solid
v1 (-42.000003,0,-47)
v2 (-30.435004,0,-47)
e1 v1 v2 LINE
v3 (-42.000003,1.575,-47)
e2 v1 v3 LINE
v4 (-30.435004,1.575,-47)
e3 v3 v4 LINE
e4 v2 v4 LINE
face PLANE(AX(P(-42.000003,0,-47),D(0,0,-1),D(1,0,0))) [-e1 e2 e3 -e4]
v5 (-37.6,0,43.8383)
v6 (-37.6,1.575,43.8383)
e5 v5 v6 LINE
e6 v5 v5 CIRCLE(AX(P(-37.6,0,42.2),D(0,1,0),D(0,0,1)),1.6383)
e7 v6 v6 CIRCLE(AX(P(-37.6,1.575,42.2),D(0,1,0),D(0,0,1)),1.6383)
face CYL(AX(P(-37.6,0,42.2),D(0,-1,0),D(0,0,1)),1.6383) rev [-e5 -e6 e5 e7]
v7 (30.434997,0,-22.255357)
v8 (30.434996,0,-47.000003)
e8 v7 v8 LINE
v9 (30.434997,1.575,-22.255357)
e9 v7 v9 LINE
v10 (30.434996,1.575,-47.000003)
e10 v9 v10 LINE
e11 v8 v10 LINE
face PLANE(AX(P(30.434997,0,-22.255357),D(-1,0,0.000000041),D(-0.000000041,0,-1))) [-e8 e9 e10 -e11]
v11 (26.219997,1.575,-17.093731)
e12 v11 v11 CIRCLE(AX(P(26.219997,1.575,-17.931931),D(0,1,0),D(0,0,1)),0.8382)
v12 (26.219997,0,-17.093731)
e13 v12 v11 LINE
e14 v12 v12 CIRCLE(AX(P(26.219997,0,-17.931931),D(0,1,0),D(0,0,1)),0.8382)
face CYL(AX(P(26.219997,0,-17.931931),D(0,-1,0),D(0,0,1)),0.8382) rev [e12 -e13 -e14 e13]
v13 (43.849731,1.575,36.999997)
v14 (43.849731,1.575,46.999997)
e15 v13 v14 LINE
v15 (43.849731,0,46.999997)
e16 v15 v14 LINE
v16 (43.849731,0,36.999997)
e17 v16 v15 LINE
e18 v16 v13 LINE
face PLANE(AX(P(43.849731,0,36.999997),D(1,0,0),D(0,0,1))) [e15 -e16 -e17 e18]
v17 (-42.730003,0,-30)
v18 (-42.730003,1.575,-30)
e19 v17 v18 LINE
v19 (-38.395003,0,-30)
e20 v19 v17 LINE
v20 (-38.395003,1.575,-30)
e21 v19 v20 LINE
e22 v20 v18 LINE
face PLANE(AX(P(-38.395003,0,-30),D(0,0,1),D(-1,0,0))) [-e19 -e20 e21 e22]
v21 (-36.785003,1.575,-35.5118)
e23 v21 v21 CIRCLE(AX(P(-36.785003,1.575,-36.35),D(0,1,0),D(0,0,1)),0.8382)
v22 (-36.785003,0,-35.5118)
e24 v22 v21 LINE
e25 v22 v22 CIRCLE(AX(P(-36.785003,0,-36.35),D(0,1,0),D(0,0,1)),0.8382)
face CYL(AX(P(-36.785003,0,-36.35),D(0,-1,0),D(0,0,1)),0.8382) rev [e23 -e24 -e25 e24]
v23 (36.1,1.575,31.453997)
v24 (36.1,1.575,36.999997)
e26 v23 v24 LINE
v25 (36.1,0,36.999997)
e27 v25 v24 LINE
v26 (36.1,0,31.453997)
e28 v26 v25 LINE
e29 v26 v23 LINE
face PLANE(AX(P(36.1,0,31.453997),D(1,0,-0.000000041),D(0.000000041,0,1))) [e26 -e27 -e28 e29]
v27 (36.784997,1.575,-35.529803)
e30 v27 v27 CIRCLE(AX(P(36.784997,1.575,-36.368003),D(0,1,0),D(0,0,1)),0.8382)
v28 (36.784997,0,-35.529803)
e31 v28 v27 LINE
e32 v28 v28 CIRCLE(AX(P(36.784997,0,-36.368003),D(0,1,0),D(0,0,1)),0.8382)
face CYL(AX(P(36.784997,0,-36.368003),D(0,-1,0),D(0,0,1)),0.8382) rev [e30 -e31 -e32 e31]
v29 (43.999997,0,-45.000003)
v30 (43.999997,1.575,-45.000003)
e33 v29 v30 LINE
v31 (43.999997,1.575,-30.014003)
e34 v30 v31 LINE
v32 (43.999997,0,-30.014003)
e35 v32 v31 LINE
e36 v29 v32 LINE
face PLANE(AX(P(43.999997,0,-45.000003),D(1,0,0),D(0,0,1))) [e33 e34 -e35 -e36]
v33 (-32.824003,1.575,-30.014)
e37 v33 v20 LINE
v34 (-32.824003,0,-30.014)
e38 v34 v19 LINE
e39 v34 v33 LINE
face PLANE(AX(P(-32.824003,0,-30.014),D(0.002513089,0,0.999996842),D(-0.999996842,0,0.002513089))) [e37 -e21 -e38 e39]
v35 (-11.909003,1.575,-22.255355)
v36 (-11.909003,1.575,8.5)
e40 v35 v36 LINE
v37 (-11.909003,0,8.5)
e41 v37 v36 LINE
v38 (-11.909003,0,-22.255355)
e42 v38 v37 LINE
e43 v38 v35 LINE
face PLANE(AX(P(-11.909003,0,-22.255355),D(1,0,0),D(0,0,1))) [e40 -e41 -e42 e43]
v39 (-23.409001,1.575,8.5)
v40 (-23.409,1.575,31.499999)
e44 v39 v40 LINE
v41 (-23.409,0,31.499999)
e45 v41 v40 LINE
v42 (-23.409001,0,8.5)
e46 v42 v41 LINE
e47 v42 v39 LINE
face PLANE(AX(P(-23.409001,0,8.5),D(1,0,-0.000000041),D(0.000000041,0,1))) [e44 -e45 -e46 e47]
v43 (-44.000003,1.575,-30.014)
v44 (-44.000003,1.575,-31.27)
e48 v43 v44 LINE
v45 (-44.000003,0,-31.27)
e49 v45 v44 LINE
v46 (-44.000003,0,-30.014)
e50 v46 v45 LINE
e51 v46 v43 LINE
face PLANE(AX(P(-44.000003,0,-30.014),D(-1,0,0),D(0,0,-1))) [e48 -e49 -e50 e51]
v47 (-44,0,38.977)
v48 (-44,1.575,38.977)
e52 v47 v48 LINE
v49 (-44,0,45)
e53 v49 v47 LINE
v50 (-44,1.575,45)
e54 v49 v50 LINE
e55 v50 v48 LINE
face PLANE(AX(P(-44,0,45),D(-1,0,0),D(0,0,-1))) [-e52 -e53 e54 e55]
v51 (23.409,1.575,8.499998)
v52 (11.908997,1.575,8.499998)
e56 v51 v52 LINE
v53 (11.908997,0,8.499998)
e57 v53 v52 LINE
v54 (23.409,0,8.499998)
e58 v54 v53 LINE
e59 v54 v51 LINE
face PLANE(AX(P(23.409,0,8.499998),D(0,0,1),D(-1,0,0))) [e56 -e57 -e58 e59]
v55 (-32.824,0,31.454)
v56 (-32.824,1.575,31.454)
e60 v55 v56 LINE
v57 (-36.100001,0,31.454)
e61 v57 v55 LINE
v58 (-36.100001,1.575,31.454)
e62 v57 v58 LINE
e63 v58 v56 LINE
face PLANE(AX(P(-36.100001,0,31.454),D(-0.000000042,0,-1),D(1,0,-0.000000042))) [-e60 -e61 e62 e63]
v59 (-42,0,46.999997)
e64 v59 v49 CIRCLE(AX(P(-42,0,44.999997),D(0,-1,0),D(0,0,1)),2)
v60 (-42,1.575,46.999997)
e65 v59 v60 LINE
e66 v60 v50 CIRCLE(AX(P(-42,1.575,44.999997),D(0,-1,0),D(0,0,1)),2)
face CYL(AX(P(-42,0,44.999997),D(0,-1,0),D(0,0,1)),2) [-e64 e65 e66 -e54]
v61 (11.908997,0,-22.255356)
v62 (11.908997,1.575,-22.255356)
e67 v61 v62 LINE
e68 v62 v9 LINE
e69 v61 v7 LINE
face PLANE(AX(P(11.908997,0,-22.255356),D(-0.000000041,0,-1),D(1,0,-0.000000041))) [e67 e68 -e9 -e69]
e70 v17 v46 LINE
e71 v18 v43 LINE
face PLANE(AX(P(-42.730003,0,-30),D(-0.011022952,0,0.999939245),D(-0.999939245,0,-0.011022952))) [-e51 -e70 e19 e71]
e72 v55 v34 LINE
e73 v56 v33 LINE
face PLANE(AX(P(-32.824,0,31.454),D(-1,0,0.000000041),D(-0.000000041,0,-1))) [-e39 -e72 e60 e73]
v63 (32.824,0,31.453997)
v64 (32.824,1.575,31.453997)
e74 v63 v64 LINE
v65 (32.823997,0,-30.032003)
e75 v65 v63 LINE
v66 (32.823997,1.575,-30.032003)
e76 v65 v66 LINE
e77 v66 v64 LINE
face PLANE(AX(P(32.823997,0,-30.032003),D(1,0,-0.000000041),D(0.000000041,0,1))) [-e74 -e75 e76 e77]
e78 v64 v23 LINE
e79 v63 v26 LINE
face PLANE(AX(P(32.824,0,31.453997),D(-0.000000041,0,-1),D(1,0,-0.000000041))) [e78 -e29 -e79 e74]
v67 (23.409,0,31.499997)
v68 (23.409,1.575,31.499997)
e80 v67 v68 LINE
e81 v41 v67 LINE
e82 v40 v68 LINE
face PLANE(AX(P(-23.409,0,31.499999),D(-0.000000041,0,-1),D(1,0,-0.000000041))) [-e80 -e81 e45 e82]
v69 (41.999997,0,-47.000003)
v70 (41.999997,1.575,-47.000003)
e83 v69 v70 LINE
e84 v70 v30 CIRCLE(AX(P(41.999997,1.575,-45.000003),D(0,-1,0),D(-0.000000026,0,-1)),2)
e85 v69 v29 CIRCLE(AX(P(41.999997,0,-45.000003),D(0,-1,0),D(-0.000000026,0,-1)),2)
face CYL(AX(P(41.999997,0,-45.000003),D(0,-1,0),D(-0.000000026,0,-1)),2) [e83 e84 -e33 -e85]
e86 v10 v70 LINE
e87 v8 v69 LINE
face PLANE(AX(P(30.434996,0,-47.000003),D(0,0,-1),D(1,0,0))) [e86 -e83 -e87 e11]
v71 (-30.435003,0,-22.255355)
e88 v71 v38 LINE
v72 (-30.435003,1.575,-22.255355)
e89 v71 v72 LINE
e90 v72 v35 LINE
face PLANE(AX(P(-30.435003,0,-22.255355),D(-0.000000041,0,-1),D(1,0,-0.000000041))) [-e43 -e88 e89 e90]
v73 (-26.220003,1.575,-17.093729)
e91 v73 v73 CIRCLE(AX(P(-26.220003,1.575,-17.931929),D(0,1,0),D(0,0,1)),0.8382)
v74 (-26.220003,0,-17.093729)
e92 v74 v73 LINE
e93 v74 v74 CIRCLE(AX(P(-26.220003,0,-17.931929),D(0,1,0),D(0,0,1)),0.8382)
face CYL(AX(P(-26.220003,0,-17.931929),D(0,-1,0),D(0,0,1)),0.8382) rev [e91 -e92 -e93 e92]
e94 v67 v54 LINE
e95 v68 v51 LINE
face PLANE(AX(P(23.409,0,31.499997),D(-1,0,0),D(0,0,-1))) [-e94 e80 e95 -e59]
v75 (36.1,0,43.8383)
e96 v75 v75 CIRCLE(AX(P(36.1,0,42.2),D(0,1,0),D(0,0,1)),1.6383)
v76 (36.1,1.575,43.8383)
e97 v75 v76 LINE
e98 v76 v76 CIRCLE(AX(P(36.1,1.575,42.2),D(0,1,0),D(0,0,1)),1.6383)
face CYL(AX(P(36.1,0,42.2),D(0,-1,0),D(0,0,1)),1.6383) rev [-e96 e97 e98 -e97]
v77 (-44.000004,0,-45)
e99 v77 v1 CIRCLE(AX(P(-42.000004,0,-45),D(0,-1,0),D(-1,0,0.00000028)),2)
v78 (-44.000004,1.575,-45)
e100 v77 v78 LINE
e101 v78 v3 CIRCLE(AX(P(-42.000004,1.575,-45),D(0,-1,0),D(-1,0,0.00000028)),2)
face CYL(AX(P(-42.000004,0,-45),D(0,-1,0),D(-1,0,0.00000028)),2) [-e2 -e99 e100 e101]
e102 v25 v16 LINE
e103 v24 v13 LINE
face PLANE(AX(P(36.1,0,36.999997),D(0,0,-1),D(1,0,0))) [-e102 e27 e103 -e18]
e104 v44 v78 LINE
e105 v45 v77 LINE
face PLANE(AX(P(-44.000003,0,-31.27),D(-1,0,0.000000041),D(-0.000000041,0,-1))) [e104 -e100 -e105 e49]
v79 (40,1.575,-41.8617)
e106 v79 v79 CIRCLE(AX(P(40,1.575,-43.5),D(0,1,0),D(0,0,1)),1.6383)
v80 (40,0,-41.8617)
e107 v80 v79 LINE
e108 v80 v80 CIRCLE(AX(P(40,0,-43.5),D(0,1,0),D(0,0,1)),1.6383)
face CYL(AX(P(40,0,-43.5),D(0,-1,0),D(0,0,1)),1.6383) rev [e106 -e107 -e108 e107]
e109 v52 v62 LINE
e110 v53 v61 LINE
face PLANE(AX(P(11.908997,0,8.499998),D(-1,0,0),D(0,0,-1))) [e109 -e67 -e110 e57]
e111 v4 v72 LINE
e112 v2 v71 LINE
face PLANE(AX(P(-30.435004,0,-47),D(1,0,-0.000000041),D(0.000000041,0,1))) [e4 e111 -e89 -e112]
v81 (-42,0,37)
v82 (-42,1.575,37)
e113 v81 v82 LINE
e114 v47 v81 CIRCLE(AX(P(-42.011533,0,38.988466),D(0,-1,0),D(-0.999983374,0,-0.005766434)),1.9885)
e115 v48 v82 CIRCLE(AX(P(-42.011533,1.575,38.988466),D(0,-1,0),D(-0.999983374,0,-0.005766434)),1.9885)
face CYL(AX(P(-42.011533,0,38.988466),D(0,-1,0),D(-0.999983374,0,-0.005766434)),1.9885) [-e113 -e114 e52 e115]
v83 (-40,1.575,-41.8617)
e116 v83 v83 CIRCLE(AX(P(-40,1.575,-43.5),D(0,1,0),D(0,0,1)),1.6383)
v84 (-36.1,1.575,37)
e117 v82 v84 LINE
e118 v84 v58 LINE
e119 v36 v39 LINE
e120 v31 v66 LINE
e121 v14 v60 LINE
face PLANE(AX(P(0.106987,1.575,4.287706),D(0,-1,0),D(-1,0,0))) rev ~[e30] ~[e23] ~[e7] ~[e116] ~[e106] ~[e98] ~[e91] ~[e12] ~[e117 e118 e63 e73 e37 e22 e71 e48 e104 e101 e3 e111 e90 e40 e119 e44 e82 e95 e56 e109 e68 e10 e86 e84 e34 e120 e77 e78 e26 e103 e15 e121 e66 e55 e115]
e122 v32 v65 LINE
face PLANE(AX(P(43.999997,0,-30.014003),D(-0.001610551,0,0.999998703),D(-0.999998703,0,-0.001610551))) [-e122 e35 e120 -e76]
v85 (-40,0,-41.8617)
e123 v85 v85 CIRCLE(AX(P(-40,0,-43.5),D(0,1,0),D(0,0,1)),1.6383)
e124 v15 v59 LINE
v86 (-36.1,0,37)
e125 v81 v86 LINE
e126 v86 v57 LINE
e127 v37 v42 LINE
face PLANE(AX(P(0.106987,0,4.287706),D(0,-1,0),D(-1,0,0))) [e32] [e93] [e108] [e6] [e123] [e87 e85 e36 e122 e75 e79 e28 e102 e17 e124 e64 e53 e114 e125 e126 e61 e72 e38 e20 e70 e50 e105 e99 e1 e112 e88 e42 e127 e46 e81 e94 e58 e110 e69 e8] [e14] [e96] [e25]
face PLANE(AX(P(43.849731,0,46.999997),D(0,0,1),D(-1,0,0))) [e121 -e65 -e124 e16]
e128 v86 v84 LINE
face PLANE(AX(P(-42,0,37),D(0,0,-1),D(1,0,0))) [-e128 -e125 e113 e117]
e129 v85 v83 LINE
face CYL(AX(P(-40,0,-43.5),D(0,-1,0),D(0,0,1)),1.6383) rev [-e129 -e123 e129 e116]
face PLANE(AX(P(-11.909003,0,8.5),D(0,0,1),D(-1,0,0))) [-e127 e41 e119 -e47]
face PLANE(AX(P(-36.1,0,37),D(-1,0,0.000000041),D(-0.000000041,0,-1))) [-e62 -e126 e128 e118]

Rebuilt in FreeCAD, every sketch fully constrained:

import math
import FreeCAD as App
import Part
import Sketcher

V = App.Vector
Q = App.Units.Quantity

doc = App.newDocument("Part")
params = doc.addObject("Spreadsheet::Sheet", "Params")
for row, (alias, value) in enumerate([
    ("sketch1_radius", "2 mm"),
    ("sketch1_height", "10 mm"),
    ("sketch1_height2", "23 mm"),
    ("sketch1_width", "5.9 mm"),
    ("sketch1_width2", "11.499999 mm"),
    ("pad1_length", "1.575 mm"),
], start=1):
    params.set(f"A{row}", alias)
    params.set(f"B{row}", "=" + value)
    params.setAlias(f"B{row}", alias)

body = doc.addObject("PartDesign::Body", "Body")

# Sketch on XZ plane
sketch1 = body.newObject("Sketcher::SketchObject", "Sketch")
sketch1.AttachmentSupport = (doc.getObject("XZ_Plane"), [""])
sketch1.MapMode = "FlatFace"
sketch1.addGeometry(Part.LineSegment(V(-42.7, -30, 0), V(-38.4, -30, 0)), False)
sketch1.addGeometry(Part.LineSegment(V(-38.4, -30, 0), V(-32.8, -30, 0)), False)
sketch1.addGeometry(Part.LineSegment(V(-32.8, -30, 0), V(-32.8, 31.5, 0)), False)
sketch1.addGeometry(Part.LineSegment(V(-32.8, 31.5, 0), V(-36.1, 31.5, 0)), False)
sketch1.addGeometry(Part.LineSegment(V(-36.1, 31.5, 0), V(-36.1, 37, 0)), False)
sketch1.addGeometry(Part.LineSegment(V(-36.1, 37, 0), V(-42, 37, 0)), False)
sketch1.addGeometry(Part.ArcOfCircle(Part.Circle(V(-42, 39, 0), V(0, 0, 1), 2), math.radians(-180), math.radians(-90)), False)
sketch1.addGeometry(Part.LineSegment(V(-44, 39, 0), V(-44, 45, 0)), False)
sketch1.addGeometry(Part.ArcOfCircle(Part.Circle(V(-42, 45, 0), V(0, 0, 1), 2), math.radians(90), math.radians(180)), False)
sketch1.addGeometry(Part.LineSegment(V(-42, 47, 0), V(43.8, 47, 0)), False)
sketch1.addGeometry(Part.LineSegment(V(43.8, 47, 0), V(43.8, 37, 0)), False)
sketch1.addGeometry(Part.LineSegment(V(43.8, 37, 0), V(36.1, 37, 0)), False)
sketch1.addGeometry(Part.LineSegment(V(36.1, 37, 0), V(36.1, 31.5, 0)), False)
sketch1.addGeometry(Part.LineSegment(V(36.1, 31.5, 0), V(32.8, 31.5, 0)), False)
sketch1.addGeometry(Part.LineSegment(V(32.8, 31.5, 0), V(32.8, -30, 0)), False)
sketch1.addGeometry(Part.LineSegment(V(32.8, -30, 0), V(44, -30, 0)), False)
sketch1.addGeometry(Part.LineSegment(V(44, -30, 0), V(44, -45, 0)), False)
sketch1.addGeometry(Part.ArcOfCircle(Part.Circle(V(42, -45, 0), V(0, 0, 1), 2), math.radians(-90), math.radians(0)), False)
sketch1.addGeometry(Part.LineSegment(V(42, -47, 0), V(30.4, -47, 0)), False)
sketch1.addGeometry(Part.LineSegment(V(30.4, -47, 0), V(30.4, -22.3, 0)), False)
sketch1.addGeometry(Part.LineSegment(V(30.4, -22.3, 0), V(11.9, -22.3, 0)), False)
sketch1.addGeometry(Part.LineSegment(V(11.9, -22.3, 0), V(11.9, 8.5, 0)), False)
sketch1.addGeometry(Part.LineSegment(V(11.9, 8.5, 0), V(23.4, 8.5, 0)), False)
sketch1.addGeometry(Part.LineSegment(V(23.4, 8.5, 0), V(23.4, 31.5, 0)), False)
sketch1.addGeometry(Part.LineSegment(V(23.4, 31.5, 0), V(-23.4, 31.5, 0)), False)
sketch1.addGeometry(Part.LineSegment(V(-23.4, 31.5, 0), V(-23.4, 8.5, 0)), False)
sketch1.addGeometry(Part.LineSegment(V(-23.4, 8.5, 0), V(-11.9, 8.5, 0)), False)
sketch1.addGeometry(Part.LineSegment(V(-11.9, 8.5, 0), V(-11.9, -22.3, 0)), False)
sketch1.addGeometry(Part.LineSegment(V(-11.9, -22.3, 0), V(-30.4, -22.3, 0)), False)
sketch1.addGeometry(Part.LineSegment(V(-30.4, -22.3, 0), V(-30.4, -47, 0)), False)
sketch1.addGeometry(Part.LineSegment(V(-30.4, -47, 0), V(-42, -47, 0)), False)
sketch1.addGeometry(Part.ArcOfCircle(Part.Circle(V(-42, -45, 0), V(0, 0, 1), 2), math.radians(180), math.radians(270)), False)
sketch1.addGeometry(Part.LineSegment(V(-44, -45, 0), V(-44, -31.3, 0)), False)
sketch1.addGeometry(Part.LineSegment(V(-44, -31.3, 0), V(-44, -30, 0)), False)
sketch1.addGeometry(Part.LineSegment(V(-44, -30, 0), V(-42.7, -30, 0)), False)
sketch1.addGeometry(Part.Circle(V(36.1, 42.2, 0), V(0, 0, 1), 1.6), False)
sketch1.addGeometry(Part.Circle(V(-37.6, 42.2, 0), V(0, 0, 1), 1.6), False)
sketch1.addGeometry(Part.Circle(V(26.2, -17.9, 0), V(0, 0, 1), 0.8), False)
sketch1.addGeometry(Part.Circle(V(36.8, -36.4, 0), V(0, 0, 1), 0.8), False)
sketch1.addGeometry(Part.Circle(V(40, -43.5, 0), V(0, 0, 1), 1.6), False)
sketch1.addGeometry(Part.Circle(V(-26.2, -17.9, 0), V(0, 0, 1), 0.8), False)
sketch1.addGeometry(Part.Circle(V(-36.8, -36.4, 0), V(0, 0, 1), 0.8), False)
sketch1.addGeometry(Part.Circle(V(-40, -43.5, 0), V(0, 0, 1), 1.6), False)
sketch1.addConstraint(Sketcher.Constraint("Coincident", 0, 2, 1, 1))
sketch1.addConstraint(Sketcher.Constraint("Coincident", 1, 2, 2, 1))
sketch1.addConstraint(Sketcher.Constraint("Coincident", 2, 2, 3, 1))
sketch1.addConstraint(Sketcher.Constraint("Coincident", 3, 2, 4, 1))
sketch1.addConstraint(Sketcher.Constraint("Coincident", 4, 2, 5, 1))
sketch1.addConstraint(Sketcher.Constraint("Coincident", 5, 2, 6, 2))
sketch1.addConstraint(Sketcher.Constraint("Coincident", 6, 1, 7, 1))
sketch1.addConstraint(Sketcher.Constraint("Tangent", 7, 2, 8, 2))
sketch1.addConstraint(Sketcher.Constraint("Tangent", 8, 1, 9, 1))
sketch1.addConstraint(Sketcher.Constraint("Coincident", 9, 2, 10, 1))
sketch1.addConstraint(Sketcher.Constraint("Coincident", 10, 2, 11, 1))
sketch1.addConstraint(Sketcher.Constraint("Coincident", 11, 2, 12, 1))
sketch1.addConstraint(Sketcher.Constraint("Coincident", 12, 2, 13, 1))
sketch1.addConstraint(Sketcher.Constraint("Coincident", 13, 2, 14, 1))
sketch1.addConstraint(Sketcher.Constraint("Coincident", 14, 2, 15, 1))
sketch1.addConstraint(Sketcher.Constraint("Coincident", 15, 2, 16, 1))
sketch1.addConstraint(Sketcher.Constraint("Tangent", 16, 2, 17, 2))
sketch1.addConstraint(Sketcher.Constraint("Tangent", 17, 1, 18, 1))
sketch1.addConstraint(Sketcher.Constraint("Coincident", 18, 2, 19, 1))
sketch1.addConstraint(Sketcher.Constraint("Coincident", 19, 2, 20, 1))
sketch1.addConstraint(Sketcher.Constraint("Coincident", 20, 2, 21, 1))
sketch1.addConstraint(Sketcher.Constraint("Coincident", 21, 2, 22, 1))
sketch1.addConstraint(Sketcher.Constraint("Coincident", 22, 2, 23, 1))
sketch1.addConstraint(Sketcher.Constraint("Coincident", 23, 2, 24, 1))
sketch1.addConstraint(Sketcher.Constraint("Coincident", 24, 2, 25, 1))
sketch1.addConstraint(Sketcher.Constraint("Coincident", 25, 2, 26, 1))
sketch1.addConstraint(Sketcher.Constraint("Coincident", 26, 2, 27, 1))
sketch1.addConstraint(Sketcher.Constraint("Coincident", 27, 2, 28, 1))
sketch1.addConstraint(Sketcher.Constraint("Coincident", 28, 2, 29, 1))
sketch1.addConstraint(Sketcher.Constraint("Coincident", 29, 2, 30, 1))
sketch1.addConstraint(Sketcher.Constraint("Tangent", 30, 2, 31, 2))
sketch1.addConstraint(Sketcher.Constraint("Tangent", 31, 1, 32, 1))
sketch1.addConstraint(Sketcher.Constraint("Coincident", 32, 2, 33, 1))
sketch1.addConstraint(Sketcher.Constraint("Coincident", 33, 2, 34, 1))
sketch1.addConstraint(Sketcher.Constraint("Coincident", 34, 2, 0, 1))
sketch1.addConstraint(Sketcher.Constraint("Horizontal", 0))
sketch1.addConstraint(Sketcher.Constraint("Horizontal", 3))
sketch1.addConstraint(Sketcher.Constraint("Vertical", 4))
sketch1.addConstraint(Sketcher.Constraint("Horizontal", 5))
sketch1.addConstraint(Sketcher.Constraint("Vertical", 7))
sketch1.addConstraint(Sketcher.Constraint("Horizontal", 9))
sketch1.addConstraint(Sketcher.Constraint("Vertical", 10))
sketch1.addConstraint(Sketcher.Constraint("Horizontal", 11))
sketch1.addConstraint(Sketcher.Constraint("Vertical", 12))
sketch1.addConstraint(Sketcher.Constraint("Horizontal", 13))
sketch1.addConstraint(Sketcher.Constraint("Vertical", 16))
sketch1.addConstraint(Sketcher.Constraint("Horizontal", 18))
sketch1.addConstraint(Sketcher.Constraint("Vertical", 19))
sketch1.addConstraint(Sketcher.Constraint("Horizontal", 20))
sketch1.addConstraint(Sketcher.Constraint("Vertical", 21))
sketch1.addConstraint(Sketcher.Constraint("Horizontal", 22))
sketch1.addConstraint(Sketcher.Constraint("Vertical", 23))
sketch1.addConstraint(Sketcher.Constraint("Horizontal", 24))
sketch1.addConstraint(Sketcher.Constraint("Vertical", 25))
sketch1.addConstraint(Sketcher.Constraint("Horizontal", 26))
sketch1.addConstraint(Sketcher.Constraint("Vertical", 27))
sketch1.addConstraint(Sketcher.Constraint("Horizontal", 28))
sketch1.addConstraint(Sketcher.Constraint("Vertical", 29))
sketch1.addConstraint(Sketcher.Constraint("Horizontal", 30))
sketch1.addConstraint(Sketcher.Constraint("Vertical", 32))
sketch1.addConstraint(Sketcher.Constraint("Vertical", 33))
sketch1.addConstraint(Sketcher.Constraint("Equal", 8, 17))
sketch1.addConstraint(Sketcher.Constraint("Equal", 17, 31))
sketch1.addConstraint(Sketcher.Constraint("Equal", 35, 36))
sketch1.addConstraint(Sketcher.Constraint("Equal", 37, 38))
sketch1.addConstraint(Sketcher.Constraint("Equal", 36, 39))
sketch1.addConstraint(Sketcher.Constraint("Equal", 38, 40))
sketch1.addConstraint(Sketcher.Constraint("Equal", 40, 41))
sketch1.addConstraint(Sketcher.Constraint("Equal", 39, 42))
sketch1.addConstraint(Sketcher.Constraint("Symmetric", 8, 3, 17, 3, -1, 1))
sketch1.addConstraint(Sketcher.Constraint("Symmetric", 17, 3, 31, 3, -2))
sketch1.addConstraint(Sketcher.Constraint("Symmetric", 37, 3, 40, 3, -2))
sketch1.addConstraint(Sketcher.Constraint("Symmetric", 39, 3, 42, 3, -2))
sketch1.addConstraint(Sketcher.Constraint("Symmetric", 4, 2, 11, 2, -2))
sketch1.addConstraint(Sketcher.Constraint("Symmetric", 2, 2, 13, 2, -2))
sketch1.addConstraint(Sketcher.Constraint("Symmetric", 22, 2, 25, 2, -2))
sketch1.addConstraint(Sketcher.Constraint("Symmetric", 20, 2, 27, 2, -2))
sketch1.addConstraint(Sketcher.Constraint("Parallel", 2, 14))
sketch1.addConstraint(Sketcher.Constraint("Horizontal", 35, 3, 36, 3))
sketch1.addConstraint(Sketcher.Constraint("Horizontal", 1, 2, 33, 2))
sketch1.addConstraint(Sketcher.Constraint("Vertical", 8, 3, 5, 2))
sketch1.addConstraint(Sketcher.Constraint("Vertical", 35, 3, 11, 2))
sketch1.addConstraint(Sketcher.Constraint("Equal", 20, 28))
sketch1.addConstraint(Sketcher.Constraint("Radius", 8, Q("2 mm")))
sketch1.addConstraint(Sketcher.Constraint("DistanceY", 10, 2, 10, 1, Q("10 mm")))
sketch1.addConstraint(Sketcher.Constraint("DistanceY", 23, 1, 23, 2, Q("23 mm")))
sketch1.addConstraint(Sketcher.Constraint("Angle", 2, Q("89.999998 deg")))
sketch1.addConstraint(Sketcher.Constraint("DistanceX", 5, 2, 5, 1, Q("5.9 mm")))
sketch1.addConstraint(Sketcher.Constraint("DistanceX", 26, 1, 26, 2, Q("11.499999 mm")))
sketch1.addConstraint(Sketcher.Constraint("DistanceX", 8, 3, -1, 1, Q("42 mm")))
sketch1.addConstraint(Sketcher.Constraint("DistanceY", 31, 3, -1, 1, Q("45 mm")))
sketch1.addConstraint(Sketcher.Constraint("DistanceX", -1, 1, 39, 3, Q("40 mm")))
sketch1.addConstraint(Sketcher.Constraint("DistanceY", 0, 2, -1, 1, Q("30 mm")))
sketch1.addConstraint(Sketcher.Constraint("Diameter", 35, Q("3.2766 mm")))
sketch1.addConstraint(Sketcher.Constraint("Diameter", 37, Q("1.6764 mm")))
sketch1.addConstraint(Sketcher.Constraint("DistanceY", 32, 1, 32, 2, Q("13.73 mm")))
sketch1.addConstraint(Sketcher.Constraint("DistanceY", -1, 1, 35, 3, Q("42.2 mm")))
sketch1.addConstraint(Sketcher.Constraint("DistanceX", 36, 3, -1, 1, Q("37.6 mm")))
sketch1.addConstraint(Sketcher.Constraint("DistanceY", 39, 3, -1, 1, Q("43.5 mm")))
sketch1.addConstraint(Sketcher.Constraint("DistanceY", -1, 1, 24, 2, Q("31.499999 mm")))
sketch1.addConstraint(Sketcher.Constraint("Radius", 6, Q("1.9885 mm")))
sketch1.addConstraint(Sketcher.Constraint("DistanceX", 0, 1, 0, 2, Q("4.335 mm")))
sketch1.addConstraint(Sketcher.Constraint("DistanceX", 3, 2, 3, 1, Q("3.276 mm")))
sketch1.addConstraint(Sketcher.Constraint("DistanceX", 18, 2, 18, 1, Q("11.565001 mm")))
sketch1.addConstraint(Sketcher.Constraint("DistanceX", 20, 2, 20, 1, Q("18.526 mm")))
sketch1.addConstraint(Sketcher.Constraint("DistanceY", 4, 1, 4, 2, Q("5.546 mm")))
sketch1.addConstraint(Sketcher.Constraint("DistanceY", 7, 1, 7, 2, Q("6.023 mm")))
sketch1.addConstraint(Sketcher.Constraint("DistanceY", 16, 2, 16, 1, Q("14.986 mm")))
sketch1.addConstraint(Sketcher.Constraint("DistanceY", 33, 1, 33, 2, Q("1.256 mm")))
sketch1.addConstraint(Sketcher.Constraint("DistanceY", 41, 3, -1, 1, Q("36.35 mm")))
sketch1.addConstraint(Sketcher.Constraint("DistanceX", 37, 3, 17, 3, Q("15.78 mm")))
sketch1.addConstraint(Sketcher.Constraint("DistanceX", 41, 3, 38, 3, Q("73.57 mm")))
sketch1.addConstraint(Sketcher.Constraint("DistanceX", 0, 2, 41, 3, Q("1.61 mm")))
sketch1.addConstraint(Sketcher.Constraint("DistanceX", 18, 2, 38, 3, Q("6.35 mm")))
sketch1.addConstraint(Sketcher.Constraint("Distance", 14, Q("61.486 mm")))
sketch1.addConstraint(Sketcher.Constraint("DistanceY", 17, 3, 38, 3, Q("8.632 mm")))
sketch1.addConstraint(Sketcher.Constraint("DistanceX", 9, 1, 9, 2, Q("85.849731 mm")))
sketch1.addConstraint(Sketcher.Constraint("DistanceY", 19, 1, 19, 2, Q("24.744646 mm")))
sketch1.addConstraint(Sketcher.Constraint("DistanceY", 37, 3, -1, 1, Q("17.931931 mm")))
sketch1.setExpression("Constraints[83]", "Params.sketch1_radius")
sketch1.setExpression("Constraints[84]", "Params.sketch1_height")
sketch1.setExpression("Constraints[85]", "Params.sketch1_height2")
sketch1.setExpression("Constraints[87]", "Params.sketch1_width")
sketch1.setExpression("Constraints[88]", "Params.sketch1_width2")
pad1 = body.newObject("PartDesign::Pad", "Pad")
pad1.Profile = sketch1
pad1.setExpression("Length", "Params.pad1_length")
pad1.Reversed = True

doc.recompute()
